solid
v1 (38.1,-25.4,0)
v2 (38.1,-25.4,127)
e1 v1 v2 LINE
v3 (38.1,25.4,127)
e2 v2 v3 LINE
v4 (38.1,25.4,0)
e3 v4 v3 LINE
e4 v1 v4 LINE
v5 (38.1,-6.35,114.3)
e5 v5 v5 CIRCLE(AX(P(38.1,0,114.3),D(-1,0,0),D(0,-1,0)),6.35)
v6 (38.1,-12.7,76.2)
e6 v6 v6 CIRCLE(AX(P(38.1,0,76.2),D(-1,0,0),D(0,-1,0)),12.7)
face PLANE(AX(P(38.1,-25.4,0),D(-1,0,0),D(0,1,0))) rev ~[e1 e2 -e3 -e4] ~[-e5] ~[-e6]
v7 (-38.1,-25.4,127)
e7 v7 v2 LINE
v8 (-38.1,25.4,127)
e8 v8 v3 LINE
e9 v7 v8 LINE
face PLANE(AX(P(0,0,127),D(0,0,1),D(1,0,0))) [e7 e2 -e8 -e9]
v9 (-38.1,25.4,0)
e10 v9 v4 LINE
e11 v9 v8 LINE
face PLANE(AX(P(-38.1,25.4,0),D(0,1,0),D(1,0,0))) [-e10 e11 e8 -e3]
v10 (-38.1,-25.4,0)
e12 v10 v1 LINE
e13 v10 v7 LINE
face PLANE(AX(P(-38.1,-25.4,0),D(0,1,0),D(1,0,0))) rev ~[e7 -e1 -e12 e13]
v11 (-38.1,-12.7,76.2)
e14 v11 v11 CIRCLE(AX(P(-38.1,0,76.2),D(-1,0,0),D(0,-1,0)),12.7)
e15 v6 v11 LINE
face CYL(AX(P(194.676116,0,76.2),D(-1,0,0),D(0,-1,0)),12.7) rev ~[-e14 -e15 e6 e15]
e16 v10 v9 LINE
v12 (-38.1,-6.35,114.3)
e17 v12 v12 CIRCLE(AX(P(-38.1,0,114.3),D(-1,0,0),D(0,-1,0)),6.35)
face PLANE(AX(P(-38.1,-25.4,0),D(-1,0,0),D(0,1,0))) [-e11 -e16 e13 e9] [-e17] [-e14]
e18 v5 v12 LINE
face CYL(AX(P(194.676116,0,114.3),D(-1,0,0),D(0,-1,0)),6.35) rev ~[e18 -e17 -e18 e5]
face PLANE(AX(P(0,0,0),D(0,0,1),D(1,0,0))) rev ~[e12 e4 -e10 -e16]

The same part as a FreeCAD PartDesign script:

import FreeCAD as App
import Part
import Sketcher
from FreeCAD import Vector
Q = App.Units.Quantity

doc = App.newDocument("Part")
body = doc.addObject("PartDesign::Body", "Body")

sketch1 = body.newObject("Sketcher::SketchObject", "Sketch")
sketch1.AttachmentSupport = (doc.getObject("XY_Plane"), [""])
sketch1.MapMode = "FlatFace"
sketch1.addGeometry([
    Part.LineSegment(Vector(-38, 25, 0), Vector(-38, -25, 0)),
    Part.LineSegment(Vector(-38, -25, 0), Vector(38, -25, 0)),
    Part.LineSegment(Vector(38, -25, 0), Vector(38, 25, 0)),
    Part.LineSegment(Vector(38, 25, 0), Vector(-38, 25, 0)),
], False)
sketch1.addConstraint([
    Sketcher.Constraint("Coincident", 0, 2, 1, 1),
    Sketcher.Constraint("Coincident", 1, 2, 2, 1),
    Sketcher.Constraint("Coincident", 2, 2, 3, 1),
    Sketcher.Constraint("Coincident", 3, 2, 0, 1),
    Sketcher.Constraint("Vertical", 0),
    Sketcher.Constraint("Horizontal", 1),
    Sketcher.Constraint("Vertical", 2),
    Sketcher.Constraint("Horizontal", 3),
    Sketcher.Constraint("Symmetric", 0, 2, 2, 2, -1, 1),
    Sketcher.Constraint("DistanceX", 1, 1, 1, 2, Q("3 in")),
    Sketcher.Constraint("DistanceY", 0, 2, 0, 1, Q("2 in")),
])
pad1 = body.newObject("PartDesign::Pad", "Pad")
pad1.Profile = sketch1
pad1.Length = Q("5 in")

sketch2 = body.newObject("Sketcher::SketchObject", "Sketch001")
sketch2.AttachmentSupport = (doc.getObject("YZ_Plane"), [""])
sketch2.MapMode = "FlatFace"
sketch2.AttachmentOffset = App.Placement(Vector(0, 0, 1.5 * 25.4), App.Rotation())
sketch2.addGeometry(Part.Circle(Vector(0, 76, 0), Vector(0, 0, 1), 13), False)
sketch2.addConstraint([
    Sketcher.Constraint("PointOnObject", 0, 3, -2),
    Sketcher.Constraint("Diameter", 0, Q("1 in")),
    Sketcher.Constraint("DistanceY", -1, 1, 0, 3, Q("3 in")),
])
doc.recompute()
hole = body.newObject("PartDesign::Hole", "Hole")
hole.Profile = sketch2
hole.ThreadType = "None"
hole.Diameter = Q("1 in")
hole.DepthType = "ThroughAll"

sketch3 = body.newObject("Sketcher::SketchObject", "Sketch002")
sketch3.AttachmentSupport = (doc.getObject("YZ_Plane"), [""])
sketch3.MapMode = "FlatFace"
sketch3.AttachmentOffset = App.Placement(Vector(0, 0, 1.5 * 25.4), App.Rotation())
sketch3.addGeometry(Part.Circle(Vector(0, 114, 0), Vector(0, 0, 1), 6), False)
sketch3.addConstraint([
    Sketcher.Constraint("PointOnObject", 0, 3, -2),
    Sketcher.Constraint("Diameter", 0, Q("0.5 in")),
    Sketcher.Constraint("DistanceY", -1, 1, 0, 3, Q("4.5 in")),
])
doc.recompute()
hole2 = body.newObject("PartDesign::Hole", "Hole001")
hole2.Profile = sketch3
hole2.ThreadType = "None"
hole2.Diameter = Q("0.5 in")
hole2.DepthType = "ThroughAll"

doc.recompute()
